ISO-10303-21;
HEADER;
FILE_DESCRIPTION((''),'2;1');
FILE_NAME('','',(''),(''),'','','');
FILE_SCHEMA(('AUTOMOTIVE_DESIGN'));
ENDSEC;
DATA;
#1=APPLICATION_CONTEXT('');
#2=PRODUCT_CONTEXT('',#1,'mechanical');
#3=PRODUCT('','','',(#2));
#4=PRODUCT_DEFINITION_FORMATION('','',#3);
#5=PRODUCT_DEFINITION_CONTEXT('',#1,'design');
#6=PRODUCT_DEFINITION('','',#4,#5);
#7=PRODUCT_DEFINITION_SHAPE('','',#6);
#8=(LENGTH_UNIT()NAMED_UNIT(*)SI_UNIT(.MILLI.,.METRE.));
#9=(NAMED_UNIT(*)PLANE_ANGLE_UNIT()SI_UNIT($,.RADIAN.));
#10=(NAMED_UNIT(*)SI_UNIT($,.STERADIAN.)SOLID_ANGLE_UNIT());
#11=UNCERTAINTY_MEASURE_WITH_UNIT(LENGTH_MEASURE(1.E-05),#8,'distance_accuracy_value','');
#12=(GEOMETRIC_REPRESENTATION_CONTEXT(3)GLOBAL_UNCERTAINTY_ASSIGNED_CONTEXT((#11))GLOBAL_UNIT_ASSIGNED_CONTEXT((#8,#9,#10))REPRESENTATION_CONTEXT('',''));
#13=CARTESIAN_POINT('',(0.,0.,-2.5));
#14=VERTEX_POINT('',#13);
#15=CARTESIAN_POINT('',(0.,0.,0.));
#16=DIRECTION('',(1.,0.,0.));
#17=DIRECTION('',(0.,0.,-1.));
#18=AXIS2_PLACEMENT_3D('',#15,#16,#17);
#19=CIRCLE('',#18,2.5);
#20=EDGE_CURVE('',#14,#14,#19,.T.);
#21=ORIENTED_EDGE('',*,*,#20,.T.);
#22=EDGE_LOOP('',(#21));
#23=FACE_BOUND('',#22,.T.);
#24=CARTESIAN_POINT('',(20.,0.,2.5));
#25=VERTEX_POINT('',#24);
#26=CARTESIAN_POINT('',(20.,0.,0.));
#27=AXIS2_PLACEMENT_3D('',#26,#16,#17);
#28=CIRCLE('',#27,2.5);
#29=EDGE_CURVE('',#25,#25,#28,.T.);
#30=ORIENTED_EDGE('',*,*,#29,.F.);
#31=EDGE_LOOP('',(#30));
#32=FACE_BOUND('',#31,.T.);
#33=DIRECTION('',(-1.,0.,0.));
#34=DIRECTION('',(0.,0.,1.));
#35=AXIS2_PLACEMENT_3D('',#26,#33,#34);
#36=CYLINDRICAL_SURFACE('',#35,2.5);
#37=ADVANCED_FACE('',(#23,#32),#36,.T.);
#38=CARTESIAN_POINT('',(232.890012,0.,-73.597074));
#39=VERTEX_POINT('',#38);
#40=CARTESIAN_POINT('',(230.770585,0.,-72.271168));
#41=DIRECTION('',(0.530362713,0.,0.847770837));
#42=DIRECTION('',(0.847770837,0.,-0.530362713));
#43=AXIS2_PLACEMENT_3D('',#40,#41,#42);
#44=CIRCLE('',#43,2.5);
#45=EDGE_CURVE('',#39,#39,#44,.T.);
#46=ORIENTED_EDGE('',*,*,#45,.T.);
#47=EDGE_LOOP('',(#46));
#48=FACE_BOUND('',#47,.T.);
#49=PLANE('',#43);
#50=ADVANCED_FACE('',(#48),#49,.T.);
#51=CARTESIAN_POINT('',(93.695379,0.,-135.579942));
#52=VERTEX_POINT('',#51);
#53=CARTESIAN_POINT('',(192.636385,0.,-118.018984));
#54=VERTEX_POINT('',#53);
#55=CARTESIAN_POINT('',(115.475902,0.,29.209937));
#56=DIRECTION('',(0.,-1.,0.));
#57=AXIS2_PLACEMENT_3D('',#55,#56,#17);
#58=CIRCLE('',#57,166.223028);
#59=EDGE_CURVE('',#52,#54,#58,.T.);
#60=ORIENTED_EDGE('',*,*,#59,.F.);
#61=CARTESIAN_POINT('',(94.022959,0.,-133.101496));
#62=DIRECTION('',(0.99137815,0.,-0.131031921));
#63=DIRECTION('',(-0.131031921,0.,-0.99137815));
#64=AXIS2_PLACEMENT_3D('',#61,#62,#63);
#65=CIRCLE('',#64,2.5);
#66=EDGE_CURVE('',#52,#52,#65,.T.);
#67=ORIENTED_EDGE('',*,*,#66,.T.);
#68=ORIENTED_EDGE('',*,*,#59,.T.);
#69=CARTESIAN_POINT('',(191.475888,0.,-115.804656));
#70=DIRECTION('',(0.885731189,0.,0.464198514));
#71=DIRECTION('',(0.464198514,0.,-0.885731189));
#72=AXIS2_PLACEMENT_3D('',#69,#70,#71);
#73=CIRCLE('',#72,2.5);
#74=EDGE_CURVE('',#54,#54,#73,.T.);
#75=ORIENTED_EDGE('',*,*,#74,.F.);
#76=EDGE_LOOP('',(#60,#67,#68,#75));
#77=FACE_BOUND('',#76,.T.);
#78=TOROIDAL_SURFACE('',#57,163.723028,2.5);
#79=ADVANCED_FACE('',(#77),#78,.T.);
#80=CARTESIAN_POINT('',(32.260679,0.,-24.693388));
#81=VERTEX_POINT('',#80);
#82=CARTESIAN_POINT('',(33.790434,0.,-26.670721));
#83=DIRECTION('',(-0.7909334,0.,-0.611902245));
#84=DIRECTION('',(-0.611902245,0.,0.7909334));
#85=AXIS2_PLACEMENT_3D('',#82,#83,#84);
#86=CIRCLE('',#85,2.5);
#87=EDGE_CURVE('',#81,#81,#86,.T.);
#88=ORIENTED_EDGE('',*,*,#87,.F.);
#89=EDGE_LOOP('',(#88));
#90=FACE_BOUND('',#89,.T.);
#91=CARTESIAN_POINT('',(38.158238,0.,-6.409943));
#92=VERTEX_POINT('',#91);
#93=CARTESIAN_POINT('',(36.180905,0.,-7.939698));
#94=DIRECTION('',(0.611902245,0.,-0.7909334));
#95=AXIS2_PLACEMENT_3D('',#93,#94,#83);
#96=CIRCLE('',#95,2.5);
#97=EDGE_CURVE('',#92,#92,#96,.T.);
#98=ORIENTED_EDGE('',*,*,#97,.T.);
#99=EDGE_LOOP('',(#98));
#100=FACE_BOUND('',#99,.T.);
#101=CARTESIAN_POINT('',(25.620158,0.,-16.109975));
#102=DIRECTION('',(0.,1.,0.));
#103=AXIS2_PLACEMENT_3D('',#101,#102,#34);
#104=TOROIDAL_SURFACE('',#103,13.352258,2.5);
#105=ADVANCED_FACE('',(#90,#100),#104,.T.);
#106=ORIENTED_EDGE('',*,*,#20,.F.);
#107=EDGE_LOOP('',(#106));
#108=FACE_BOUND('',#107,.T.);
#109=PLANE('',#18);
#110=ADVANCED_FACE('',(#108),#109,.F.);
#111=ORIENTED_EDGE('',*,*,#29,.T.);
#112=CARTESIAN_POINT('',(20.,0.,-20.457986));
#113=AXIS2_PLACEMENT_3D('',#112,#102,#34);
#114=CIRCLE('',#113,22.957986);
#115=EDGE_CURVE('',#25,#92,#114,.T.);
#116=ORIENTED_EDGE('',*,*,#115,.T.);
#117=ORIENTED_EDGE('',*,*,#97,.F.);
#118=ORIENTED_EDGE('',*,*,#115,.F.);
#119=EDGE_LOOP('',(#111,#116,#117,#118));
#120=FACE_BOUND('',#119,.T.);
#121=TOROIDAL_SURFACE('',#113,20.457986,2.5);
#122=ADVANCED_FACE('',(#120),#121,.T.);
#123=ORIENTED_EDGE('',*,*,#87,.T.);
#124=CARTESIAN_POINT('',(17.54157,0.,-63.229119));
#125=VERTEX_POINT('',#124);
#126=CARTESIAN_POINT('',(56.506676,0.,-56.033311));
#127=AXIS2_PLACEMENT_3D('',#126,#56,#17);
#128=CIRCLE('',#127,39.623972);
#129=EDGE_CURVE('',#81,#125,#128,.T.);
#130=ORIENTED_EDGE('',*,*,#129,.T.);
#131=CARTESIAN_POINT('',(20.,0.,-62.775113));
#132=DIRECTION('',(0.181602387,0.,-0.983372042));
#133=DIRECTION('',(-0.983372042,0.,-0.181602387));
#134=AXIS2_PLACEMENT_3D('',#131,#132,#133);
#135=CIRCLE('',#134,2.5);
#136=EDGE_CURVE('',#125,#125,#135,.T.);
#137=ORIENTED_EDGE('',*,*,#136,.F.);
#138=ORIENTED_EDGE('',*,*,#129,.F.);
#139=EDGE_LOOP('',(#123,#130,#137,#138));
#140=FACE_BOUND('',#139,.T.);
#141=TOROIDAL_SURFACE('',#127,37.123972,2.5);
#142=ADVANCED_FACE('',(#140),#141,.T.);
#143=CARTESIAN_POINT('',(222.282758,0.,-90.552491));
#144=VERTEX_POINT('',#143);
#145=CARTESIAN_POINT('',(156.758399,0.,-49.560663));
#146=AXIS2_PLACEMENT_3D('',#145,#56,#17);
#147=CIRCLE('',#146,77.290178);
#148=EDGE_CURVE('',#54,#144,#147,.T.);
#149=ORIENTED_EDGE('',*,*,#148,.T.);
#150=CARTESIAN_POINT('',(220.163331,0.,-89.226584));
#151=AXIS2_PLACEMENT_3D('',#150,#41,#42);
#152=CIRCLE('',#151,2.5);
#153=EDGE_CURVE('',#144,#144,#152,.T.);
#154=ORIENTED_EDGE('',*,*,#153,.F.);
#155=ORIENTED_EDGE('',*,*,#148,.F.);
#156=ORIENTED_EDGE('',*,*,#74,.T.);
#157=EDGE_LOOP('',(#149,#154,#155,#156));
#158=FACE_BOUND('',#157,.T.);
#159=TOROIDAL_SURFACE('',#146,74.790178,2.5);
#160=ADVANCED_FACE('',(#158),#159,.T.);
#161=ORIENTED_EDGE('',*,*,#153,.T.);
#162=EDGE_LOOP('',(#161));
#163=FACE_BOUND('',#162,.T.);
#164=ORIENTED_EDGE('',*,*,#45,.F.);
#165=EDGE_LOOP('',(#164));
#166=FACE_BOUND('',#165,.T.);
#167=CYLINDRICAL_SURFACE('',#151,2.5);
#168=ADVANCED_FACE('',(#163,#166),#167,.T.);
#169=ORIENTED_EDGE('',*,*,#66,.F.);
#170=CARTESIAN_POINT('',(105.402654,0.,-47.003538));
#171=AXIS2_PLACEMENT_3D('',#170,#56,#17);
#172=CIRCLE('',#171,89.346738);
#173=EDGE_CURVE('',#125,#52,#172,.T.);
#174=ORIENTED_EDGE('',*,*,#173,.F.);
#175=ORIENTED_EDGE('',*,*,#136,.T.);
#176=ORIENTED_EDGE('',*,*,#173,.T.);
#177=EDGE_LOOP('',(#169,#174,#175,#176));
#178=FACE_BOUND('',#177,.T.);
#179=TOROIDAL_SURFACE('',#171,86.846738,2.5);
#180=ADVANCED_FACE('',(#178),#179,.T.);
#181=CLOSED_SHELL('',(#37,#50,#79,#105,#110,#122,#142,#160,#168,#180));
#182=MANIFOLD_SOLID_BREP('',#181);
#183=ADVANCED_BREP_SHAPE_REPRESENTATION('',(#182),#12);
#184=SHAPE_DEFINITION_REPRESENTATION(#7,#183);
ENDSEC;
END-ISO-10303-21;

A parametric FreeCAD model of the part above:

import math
import FreeCAD as App
import Part
import Sketcher

V = App.Vector

doc = App.newDocument("Part")
params = doc.addObject("Spreadsheet::Sheet", "Params")
for row, (alias, value) in enumerate([
    ("sketch1_diameter", "5 mm"),
    ("sketch2_width", "20 mm"),
    ("sketch2_length", "20 mm"),
], start=1):
    params.set(f"A{row}", alias)
    params.set(f"B{row}", "=" + value)
    params.setAlias(f"B{row}", alias)

body = doc.addObject("PartDesign::Body", "Body")

# Sketch on YZ plane
sketch1 = body.newObject("Sketcher::SketchObject", "Sketch")
sketch1.AttachmentSupport = (doc.getObject("YZ_Plane"), [""])
sketch1.MapMode = "FlatFace"
sketch1.addGeometry(Part.Circle(V(0, 0, 0), V(0, 0, 1), 2.5), False)
sketch1.addConstraint([
    Sketcher.Constraint("Coincident", 0, 3, -1, 1),
    Sketcher.Constraint("Diameter", 0, 5.0),
])
sketch1.setExpression("Constraints[1]", "Params.sketch1_diameter")

# Sketch on XZ plane
sketch2 = body.newObject("Sketcher::SketchObject", "Sketch001")
sketch2.AttachmentSupport = (doc.getObject("XZ_Plane"), [""])
sketch2.MapMode = "FlatFace"
sketch2.addGeometry([
    Part.LineSegment(V(0, 0, 0), V(20, 0, 0)),  # 0
    Part.ArcOfCircle(Part.Circle(V(20, -20.457986, 0), V(0, 0, 1), 20.457986), math.radians(37.727175), math.radians(90)),  # 1
    Part.ArcOfCircle(Part.Circle(V(25.620158, -16.109975, 0), V(0, 0, 1), 13.352258), math.radians(-52.272825), math.radians(37.727175)),  # 2
    Part.ArcOfCircle(Part.Circle(V(56.506676, -56.033311, 0), V(0, 0, 1), 37.123972), math.radians(127.727175), math.radians(190.463108)),  # 3
    Part.ArcOfCircle(Part.Circle(V(105.402654, -47.003538, 0), V(0, 0, 1), 86.846738), math.radians(-169.536892), math.radians(-97.529227)),  # 4
    Part.ArcOfCircle(Part.Circle(V(115.475902, 29.209937, 0), V(0, 0, 1), 163.723028), math.radians(-97.529227), math.radians(-62.341636)),  # 5
    Part.ArcOfCircle(Part.Circle(V(156.758399, -49.560663, 0), V(0, 0, 1), 74.790178), math.radians(-62.341636), math.radians(-32.029965)),  # 6
    Part.LineSegment(V(220.163331, -89.226584, 0), V(230.770585, -72.271168, 0)),  # 7
], False)
sketch2.addConstraint([
    Sketcher.Constraint("Tangent", 0, 2, 1, 2),
    Sketcher.Constraint("Tangent", 1, 1, 2, 2),
    Sketcher.Constraint("Tangent", 2, 1, 3, 1),
    Sketcher.Constraint("Tangent", 3, 2, 4, 1),
    Sketcher.Constraint("Tangent", 4, 2, 5, 1),
    Sketcher.Constraint("Tangent", 5, 2, 6, 1),
    Sketcher.Constraint("Tangent", 6, 2, 7, 1),
    Sketcher.Constraint("Horizontal", 0),
    Sketcher.Constraint("Coincident", 0, 1, -1, 1),
    Sketcher.Constraint("Vertical", 0, 2, 3, 2),
    Sketcher.Constraint("DistanceX", 0, 1, 0, 2, 20.0),
    Sketcher.Constraint("Distance", 7, 20.0),
    Sketcher.Constraint("Radius", 5, 163.723028),
    Sketcher.Constraint("Radius", 6, 74.790178),
    Sketcher.Constraint("Radius", 1, 20.457986),
    Sketcher.Constraint("Radius", 2, 13.352258),
    Sketcher.Constraint("Radius", 3, 37.123972),
    Sketcher.Constraint("Radius", 4, 86.846738),
    Sketcher.Constraint("DistanceX", -1, 1, 5, 3, 115.475902),
    Sketcher.Constraint("DistanceX", -1, 1, 6, 3, 156.758399),
    Sketcher.Constraint("DistanceY", 1, 1, -1, 1, 7.939698),
    Sketcher.Constraint("DistanceY", 3, 2, 3, 3, 6.741802),
    Sketcher.Constraint("DistanceX", -1, 1, 6, 2, 220.163331),
])
sketch2.setExpression("Constraints[10]", "Params.sketch2_width")
sketch2.setExpression("Constraints[11]", "Params.sketch2_length")
doc.recompute()

additivepipe = body.newObject("PartDesign::AdditivePipe", "AdditivePipe")
additivepipe.Profile = sketch1
additivepipe.Spine = (sketch2, ["Edge1", "Edge2", "Edge3", "Edge4", "Edge5", "Edge6", "Edge7", "Edge8"])

doc.recompute()
